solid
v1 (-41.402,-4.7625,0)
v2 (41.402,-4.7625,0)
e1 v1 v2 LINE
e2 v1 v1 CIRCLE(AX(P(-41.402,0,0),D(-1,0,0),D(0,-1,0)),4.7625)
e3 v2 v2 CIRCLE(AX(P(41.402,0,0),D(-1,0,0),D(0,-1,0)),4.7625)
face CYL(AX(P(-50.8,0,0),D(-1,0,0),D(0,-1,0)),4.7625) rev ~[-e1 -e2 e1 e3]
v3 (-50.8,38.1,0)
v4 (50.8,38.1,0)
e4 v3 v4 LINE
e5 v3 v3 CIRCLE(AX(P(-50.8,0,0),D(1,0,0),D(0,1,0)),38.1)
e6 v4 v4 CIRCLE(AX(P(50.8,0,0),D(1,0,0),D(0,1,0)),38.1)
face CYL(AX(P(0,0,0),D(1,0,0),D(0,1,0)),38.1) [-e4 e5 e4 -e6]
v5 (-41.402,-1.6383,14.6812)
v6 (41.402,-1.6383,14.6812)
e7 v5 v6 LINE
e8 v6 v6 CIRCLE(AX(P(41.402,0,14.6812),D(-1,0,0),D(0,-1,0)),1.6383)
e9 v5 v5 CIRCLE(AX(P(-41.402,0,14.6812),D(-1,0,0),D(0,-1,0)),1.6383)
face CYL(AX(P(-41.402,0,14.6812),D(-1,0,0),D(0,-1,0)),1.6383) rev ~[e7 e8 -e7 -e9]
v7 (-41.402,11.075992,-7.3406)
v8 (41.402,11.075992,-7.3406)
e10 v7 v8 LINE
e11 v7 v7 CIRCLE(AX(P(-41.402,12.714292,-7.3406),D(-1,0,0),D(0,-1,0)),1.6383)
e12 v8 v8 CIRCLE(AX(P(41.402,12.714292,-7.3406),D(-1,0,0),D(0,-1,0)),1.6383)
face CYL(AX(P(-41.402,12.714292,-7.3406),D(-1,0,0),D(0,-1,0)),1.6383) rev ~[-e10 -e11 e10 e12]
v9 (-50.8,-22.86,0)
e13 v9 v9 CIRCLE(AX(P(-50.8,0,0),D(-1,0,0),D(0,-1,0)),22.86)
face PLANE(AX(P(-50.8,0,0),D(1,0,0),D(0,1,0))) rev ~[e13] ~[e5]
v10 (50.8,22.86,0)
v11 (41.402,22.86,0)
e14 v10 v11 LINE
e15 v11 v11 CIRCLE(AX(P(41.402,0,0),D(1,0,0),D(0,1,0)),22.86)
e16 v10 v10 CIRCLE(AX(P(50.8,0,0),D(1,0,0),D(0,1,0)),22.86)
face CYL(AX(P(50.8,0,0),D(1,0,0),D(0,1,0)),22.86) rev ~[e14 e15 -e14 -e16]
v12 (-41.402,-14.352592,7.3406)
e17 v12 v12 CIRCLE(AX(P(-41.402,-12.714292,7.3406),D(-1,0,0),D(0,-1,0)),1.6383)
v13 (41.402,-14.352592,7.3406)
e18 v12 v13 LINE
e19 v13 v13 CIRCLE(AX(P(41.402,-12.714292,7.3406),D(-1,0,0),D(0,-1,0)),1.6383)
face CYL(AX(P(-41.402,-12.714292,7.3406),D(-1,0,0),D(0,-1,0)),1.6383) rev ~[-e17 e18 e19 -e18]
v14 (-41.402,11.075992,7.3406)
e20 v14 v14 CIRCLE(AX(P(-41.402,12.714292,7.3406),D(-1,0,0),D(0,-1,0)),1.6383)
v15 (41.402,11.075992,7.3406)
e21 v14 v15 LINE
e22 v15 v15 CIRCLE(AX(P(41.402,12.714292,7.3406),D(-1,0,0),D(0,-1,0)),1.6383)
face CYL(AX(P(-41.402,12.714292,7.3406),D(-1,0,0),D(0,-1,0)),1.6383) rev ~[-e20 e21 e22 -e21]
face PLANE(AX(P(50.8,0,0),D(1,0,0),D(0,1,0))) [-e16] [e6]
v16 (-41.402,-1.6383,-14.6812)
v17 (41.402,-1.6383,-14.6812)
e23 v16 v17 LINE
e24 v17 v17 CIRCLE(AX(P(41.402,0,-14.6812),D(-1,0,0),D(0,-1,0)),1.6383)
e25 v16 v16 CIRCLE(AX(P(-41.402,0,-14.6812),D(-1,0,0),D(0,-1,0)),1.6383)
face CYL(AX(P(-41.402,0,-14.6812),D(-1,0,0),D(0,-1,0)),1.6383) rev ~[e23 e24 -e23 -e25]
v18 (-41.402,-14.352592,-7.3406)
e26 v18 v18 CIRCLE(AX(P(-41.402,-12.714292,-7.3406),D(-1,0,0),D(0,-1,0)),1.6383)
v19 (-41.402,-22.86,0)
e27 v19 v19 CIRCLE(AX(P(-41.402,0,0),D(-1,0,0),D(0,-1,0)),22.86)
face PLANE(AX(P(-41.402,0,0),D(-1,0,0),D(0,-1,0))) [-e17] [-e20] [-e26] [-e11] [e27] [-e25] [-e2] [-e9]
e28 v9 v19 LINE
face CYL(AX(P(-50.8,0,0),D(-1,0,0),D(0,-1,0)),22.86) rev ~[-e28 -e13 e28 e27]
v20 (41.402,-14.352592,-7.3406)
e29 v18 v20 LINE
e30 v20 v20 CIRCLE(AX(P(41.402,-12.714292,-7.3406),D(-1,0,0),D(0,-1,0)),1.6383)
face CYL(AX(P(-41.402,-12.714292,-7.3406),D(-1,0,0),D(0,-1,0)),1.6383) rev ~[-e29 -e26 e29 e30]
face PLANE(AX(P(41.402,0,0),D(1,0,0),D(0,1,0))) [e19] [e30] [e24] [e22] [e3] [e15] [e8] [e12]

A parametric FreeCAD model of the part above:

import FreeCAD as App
import Part
import Sketcher

V = App.Vector
Q = App.Units.Quantity

doc = App.newDocument("Part")
body = doc.addObject("PartDesign::Body", "Body")

sketch1 = doc.addObject("Sketcher::SketchObject", "Sketch")
body.addObject(sketch1)
sketch1.AttachmentSupport = (doc.YZ_Plane, [""])
sketch1.MapMode = "FlatFace"
sketch1.addGeometry(Part.Circle(V(0, 0, 0), V(0, 0, 1), 38), False)
sketch1.addConstraint(Sketcher.Constraint("Coincident", 0, 3, -1, 1))
sketch1.addConstraint(Sketcher.Constraint("Diameter", 0, Q("3 in")))
pad1 = doc.addObject("PartDesign::Pad", "Pad")
body.addObject(pad1)
pad1.Profile = sketch1
pad1.Length = Q("4 in")
pad1.Midplane = True

sketch2 = doc.addObject("Sketcher::SketchObject", "Sketch001")
body.addObject(sketch2)
sketch2.AttachmentSupport = (doc.YZ_Plane, [""])
sketch2.MapMode = "FlatFace"
sketch2.AttachmentOffset = App.Placement(V(0, 0, -2 * 25.4), App.Rotation())
sketch2.addGeometry(Part.Circle(V(0, 0, 0), V(0, 0, 1), 23), False)
sketch2.addConstraint(Sketcher.Constraint("Coincident", 0, 3, -1, 1))
sketch2.addConstraint(Sketcher.Constraint("Diameter", 0, Q("1.8 in")))
pocket1 = doc.addObject("PartDesign::Pocket", "Pocket")
body.addObject(pocket1)
pocket1.Profile = sketch2
pocket1.Length = Q("0.37 in")
pocket1.Reversed = True

sketch3 = doc.addObject("Sketcher::SketchObject", "Sketch002")
body.addObject(sketch3)
sketch3.AttachmentSupport = (doc.YZ_Plane, [""])
sketch3.MapMode = "FlatFace"
sketch3.AttachmentOffset = App.Placement(V(0, 0, 2 * 25.4), App.Rotation())
sketch3.addGeometry(Part.Circle(V(0, 0, 0), V(0, 0, 1), 23), False)
sketch3.addConstraint(Sketcher.Constraint("Coincident", 0, 3, -1, 1))
sketch3.addConstraint(Sketcher.Constraint("Diameter", 0, Q("1.8 in")))
pocket2 = doc.addObject("PartDesign::Pocket", "Pocket001")
body.addObject(pocket2)
pocket2.Profile = sketch3
pocket2.Length = Q("0.37 in")

sketch4 = doc.addObject("Sketcher::SketchObject", "Sketch003")
body.addObject(sketch4)
sketch4.AttachmentSupport = (doc.YZ_Plane, [""])
sketch4.MapMode = "FlatFace"
sketch4.AttachmentOffset = App.Placement(V(0, 0, -2 * 25.4), App.Rotation())
sketch4.addGeometry(Part.Circle(V(0, 0, 0), V(0, 0, 1), 4.8), False)
sketch4.addConstraint(Sketcher.Constraint("Coincident", 0, 3, -1, 1))
sketch4.addConstraint(Sketcher.Constraint("Diameter", 0, Q("0.375 in")))
pocket3 = doc.addObject("PartDesign::Pocket", "Pocket002")
body.addObject(pocket3)
pocket3.Profile = sketch4
pocket3.Type = "ThroughAll"
pocket3.Reversed = True

sketch5 = doc.addObject("Sketcher::SketchObject", "Sketch004")
body.addObject(sketch5)
sketch5.AttachmentSupport = (doc.YZ_Plane, [""])
sketch5.MapMode = "FlatFace"
sketch5.AttachmentOffset = App.Placement(V(0, 0, -1.63 * 25.4), App.Rotation())
sketch5.addGeometry(Part.Circle(V(0, 14.7, 0), V(0, 0, 1), 1.6), False)
sketch5.addGeometry(Part.Circle(V(-12.7, 7.3, 0), V(0, 0, 1), 1.6), False)
sketch5.addGeometry(Part.Circle(V(-12.7, -7.3, 0), V(0, 0, 1), 1.6), False)
sketch5.addGeometry(Part.Circle(V(0, -14.7, 0), V(0, 0, 1), 1.6), False)
sketch5.addGeometry(Part.Circle(V(12.7, -7.3, 0), V(0, 0, 1), 1.6), False)
sketch5.addGeometry(Part.Circle(V(12.7, 7.3, 0), V(0, 0, 1), 1.6), False)
sketch5.addConstraint(Sketcher.Constraint("Equal", 0, 1))
sketch5.addConstraint(Sketcher.Constraint("Equal", 1, 2))
sketch5.addConstraint(Sketcher.Constraint("Equal", 2, 3))
sketch5.addConstraint(Sketcher.Constraint("Equal", 3, 4))
sketch5.addConstraint(Sketcher.Constraint("Equal", 4, 5))
sketch5.addConstraint(Sketcher.Constraint("Symmetric", 0, 3, 3, 3, -1, 1))
sketch5.addConstraint(Sketcher.Constraint("Symmetric", 1, 3, 4, 3, -1, 1))
sketch5.addConstraint(Sketcher.Constraint("Symmetric", 2, 3, 5, 3, -1, 1))
sketch5.addConstraint(Sketcher.Constraint("Symmetric", 2, 3, 4, 3, -2))
sketch5.addConstraint(Sketcher.Constraint("PointOnObject", 0, 3, -2))
sketch5.addConstraint(Sketcher.Constraint("Diameter", 0, Q("0.129 in")))
sketch5.addConstraint(Sketcher.Constraint("DistanceY", -1, 1, 0, 3, Q("0.578 in")))
sketch5.addConstraint(Sketcher.Constraint("DistanceY", -1, 1, 1, 3, Q("0.289 in")))
sketch5.addConstraint(Sketcher.Constraint("DistanceX", 1, 3, -1, 1, Q("12.714292 mm")))
pocket4 = doc.addObject("PartDesign::Pocket", "Pocket003")
body.addObject(pocket4)
pocket4.Profile = sketch5
pocket4.Type = "ThroughAll"
pocket4.Reversed = True

doc.recompute()
